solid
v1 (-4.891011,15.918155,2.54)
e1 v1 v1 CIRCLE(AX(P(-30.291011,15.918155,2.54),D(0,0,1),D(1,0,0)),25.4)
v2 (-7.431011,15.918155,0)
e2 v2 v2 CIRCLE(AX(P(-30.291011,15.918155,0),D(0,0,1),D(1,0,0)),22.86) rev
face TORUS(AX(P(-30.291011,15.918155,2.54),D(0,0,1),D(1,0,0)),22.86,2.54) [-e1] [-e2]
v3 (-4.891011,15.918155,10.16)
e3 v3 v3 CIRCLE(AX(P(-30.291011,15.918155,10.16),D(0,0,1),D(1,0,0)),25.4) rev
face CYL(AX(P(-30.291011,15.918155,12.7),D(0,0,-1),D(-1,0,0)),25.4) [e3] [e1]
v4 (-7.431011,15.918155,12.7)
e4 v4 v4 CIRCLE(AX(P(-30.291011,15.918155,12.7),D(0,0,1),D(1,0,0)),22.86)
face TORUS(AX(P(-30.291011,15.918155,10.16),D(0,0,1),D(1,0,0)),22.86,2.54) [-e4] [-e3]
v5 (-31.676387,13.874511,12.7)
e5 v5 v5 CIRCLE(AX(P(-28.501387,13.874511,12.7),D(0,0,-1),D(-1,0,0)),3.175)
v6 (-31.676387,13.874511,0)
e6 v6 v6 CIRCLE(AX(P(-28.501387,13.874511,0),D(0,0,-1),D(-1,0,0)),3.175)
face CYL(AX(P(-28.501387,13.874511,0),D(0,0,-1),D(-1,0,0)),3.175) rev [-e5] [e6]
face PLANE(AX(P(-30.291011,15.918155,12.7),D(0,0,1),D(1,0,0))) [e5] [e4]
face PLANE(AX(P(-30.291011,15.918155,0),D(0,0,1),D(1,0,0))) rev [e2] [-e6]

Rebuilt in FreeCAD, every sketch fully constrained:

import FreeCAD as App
import Part
import Sketcher

V = App.Vector
Q = App.Units.Quantity


def edges_at(feature, points):
    """Names of the edges that pass closest to the given points."""
    edges = feature.Shape.Edges
    near = lambda p: min(range(len(edges)), key=lambda i: edges[i].distToShape(Part.Vertex(*p))[0])
    return sorted({f"Edge{near(p) + 1}" for p in points})

doc = App.newDocument("Part")
body = doc.addObject("PartDesign::Body", "Body")

sketch1 = body.newObject("Sketcher::SketchObject", "Sketch")
sketch1.AttachmentSupport = (doc.getObject("XY_Plane"), [""])
sketch1.MapMode = "FlatFace"
sketch1.addGeometry(Part.Circle(V(-30, 16, 0), V(0, 0, 1), 25), False)
sketch1.addConstraint([
    Sketcher.Constraint("Diameter", 0, Q("2 in")),
    Sketcher.Constraint("DistanceX", 0, 3, -1, 1, 30.291011),
    Sketcher.Constraint("DistanceY", -1, 1, 0, 3, 15.918155),
])
pad1 = body.newObject("PartDesign::Pad", "Pad")
pad1.Profile = sketch1
pad1.Length = Q("0.5 in")
doc.recompute()

fillet = body.newObject("PartDesign::Fillet", "Fillet")
fillet.Base = (pad1, edges_at(pad1, [(-55.691, 15.918, 12.7)]))
fillet.Radius = Q("0.1 in")
doc.recompute()

fillet2 = body.newObject("PartDesign::Fillet", "Fillet001")
fillet2.Base = (fillet, edges_at(fillet, [(-55.691, 15.918, 0)]))
fillet2.Radius = Q("0.1 in")

sketch2 = body.newObject("Sketcher::SketchObject", "Sketch001")
sketch2.AttachmentSupport = (doc.getObject("XY_Plane"), [""])
sketch2.MapMode = "FlatFace"
sketch2.addGeometry(Part.Circle(V(-28.5, 13.9, 0), V(0, 0, 1), 3.2), False)
sketch2.addConstraint([
    Sketcher.Constraint("Diameter", 0, Q("0.25 in")),
    Sketcher.Constraint("DistanceY", -1, 1, 0, 3, 13.874511),
    Sketcher.Constraint("DistanceX", 0, 3, -1, 1, 28.501387),
])
doc.recompute()
hole = body.newObject("PartDesign::Hole", "Hole")
hole.Profile = sketch2
hole.ThreadType = "None"
hole.Diameter = Q("0.25 in")
hole.DepthType = "ThroughAll"
hole.Reversed = True

doc.recompute()
